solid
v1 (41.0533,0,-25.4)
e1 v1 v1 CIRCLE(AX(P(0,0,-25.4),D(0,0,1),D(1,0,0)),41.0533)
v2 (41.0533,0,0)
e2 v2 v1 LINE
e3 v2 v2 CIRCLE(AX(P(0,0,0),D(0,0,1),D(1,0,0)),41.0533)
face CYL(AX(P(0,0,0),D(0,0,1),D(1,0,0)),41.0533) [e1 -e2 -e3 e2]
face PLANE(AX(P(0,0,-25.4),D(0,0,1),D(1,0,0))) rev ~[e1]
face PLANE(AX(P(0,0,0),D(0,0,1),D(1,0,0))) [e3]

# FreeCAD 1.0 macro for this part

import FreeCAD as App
import Part
import Sketcher
Q = App.Units.Quantity

doc = App.newDocument("Part")
body = doc.addObject("PartDesign::Body", "Body")

# Sketch on XY plane
sketch1 = body.newObject("Sketcher::SketchObject", "Sketch")
sketch1.AttachmentSupport = (doc.getObject("XY_Plane"), [""])
sketch1.MapMode = "FlatFace"
sketch1.addGeometry(Part.Circle(App.Vector(0, 0, 0), App.Vector(0, 0, 1), 41), False)
sketch1.addConstraint([
    Sketcher.Constraint("Coincident", 0, 3, -1, 1),
    Sketcher.Constraint("Diameter", 0, Q("82.1066 mm")),
])
pad1 = body.newObject("PartDesign::Pad", "Pad")
pad1.Profile = sketch1
pad1.Length = Q("1 in")
pad1.Reversed = True

doc.recompute()
